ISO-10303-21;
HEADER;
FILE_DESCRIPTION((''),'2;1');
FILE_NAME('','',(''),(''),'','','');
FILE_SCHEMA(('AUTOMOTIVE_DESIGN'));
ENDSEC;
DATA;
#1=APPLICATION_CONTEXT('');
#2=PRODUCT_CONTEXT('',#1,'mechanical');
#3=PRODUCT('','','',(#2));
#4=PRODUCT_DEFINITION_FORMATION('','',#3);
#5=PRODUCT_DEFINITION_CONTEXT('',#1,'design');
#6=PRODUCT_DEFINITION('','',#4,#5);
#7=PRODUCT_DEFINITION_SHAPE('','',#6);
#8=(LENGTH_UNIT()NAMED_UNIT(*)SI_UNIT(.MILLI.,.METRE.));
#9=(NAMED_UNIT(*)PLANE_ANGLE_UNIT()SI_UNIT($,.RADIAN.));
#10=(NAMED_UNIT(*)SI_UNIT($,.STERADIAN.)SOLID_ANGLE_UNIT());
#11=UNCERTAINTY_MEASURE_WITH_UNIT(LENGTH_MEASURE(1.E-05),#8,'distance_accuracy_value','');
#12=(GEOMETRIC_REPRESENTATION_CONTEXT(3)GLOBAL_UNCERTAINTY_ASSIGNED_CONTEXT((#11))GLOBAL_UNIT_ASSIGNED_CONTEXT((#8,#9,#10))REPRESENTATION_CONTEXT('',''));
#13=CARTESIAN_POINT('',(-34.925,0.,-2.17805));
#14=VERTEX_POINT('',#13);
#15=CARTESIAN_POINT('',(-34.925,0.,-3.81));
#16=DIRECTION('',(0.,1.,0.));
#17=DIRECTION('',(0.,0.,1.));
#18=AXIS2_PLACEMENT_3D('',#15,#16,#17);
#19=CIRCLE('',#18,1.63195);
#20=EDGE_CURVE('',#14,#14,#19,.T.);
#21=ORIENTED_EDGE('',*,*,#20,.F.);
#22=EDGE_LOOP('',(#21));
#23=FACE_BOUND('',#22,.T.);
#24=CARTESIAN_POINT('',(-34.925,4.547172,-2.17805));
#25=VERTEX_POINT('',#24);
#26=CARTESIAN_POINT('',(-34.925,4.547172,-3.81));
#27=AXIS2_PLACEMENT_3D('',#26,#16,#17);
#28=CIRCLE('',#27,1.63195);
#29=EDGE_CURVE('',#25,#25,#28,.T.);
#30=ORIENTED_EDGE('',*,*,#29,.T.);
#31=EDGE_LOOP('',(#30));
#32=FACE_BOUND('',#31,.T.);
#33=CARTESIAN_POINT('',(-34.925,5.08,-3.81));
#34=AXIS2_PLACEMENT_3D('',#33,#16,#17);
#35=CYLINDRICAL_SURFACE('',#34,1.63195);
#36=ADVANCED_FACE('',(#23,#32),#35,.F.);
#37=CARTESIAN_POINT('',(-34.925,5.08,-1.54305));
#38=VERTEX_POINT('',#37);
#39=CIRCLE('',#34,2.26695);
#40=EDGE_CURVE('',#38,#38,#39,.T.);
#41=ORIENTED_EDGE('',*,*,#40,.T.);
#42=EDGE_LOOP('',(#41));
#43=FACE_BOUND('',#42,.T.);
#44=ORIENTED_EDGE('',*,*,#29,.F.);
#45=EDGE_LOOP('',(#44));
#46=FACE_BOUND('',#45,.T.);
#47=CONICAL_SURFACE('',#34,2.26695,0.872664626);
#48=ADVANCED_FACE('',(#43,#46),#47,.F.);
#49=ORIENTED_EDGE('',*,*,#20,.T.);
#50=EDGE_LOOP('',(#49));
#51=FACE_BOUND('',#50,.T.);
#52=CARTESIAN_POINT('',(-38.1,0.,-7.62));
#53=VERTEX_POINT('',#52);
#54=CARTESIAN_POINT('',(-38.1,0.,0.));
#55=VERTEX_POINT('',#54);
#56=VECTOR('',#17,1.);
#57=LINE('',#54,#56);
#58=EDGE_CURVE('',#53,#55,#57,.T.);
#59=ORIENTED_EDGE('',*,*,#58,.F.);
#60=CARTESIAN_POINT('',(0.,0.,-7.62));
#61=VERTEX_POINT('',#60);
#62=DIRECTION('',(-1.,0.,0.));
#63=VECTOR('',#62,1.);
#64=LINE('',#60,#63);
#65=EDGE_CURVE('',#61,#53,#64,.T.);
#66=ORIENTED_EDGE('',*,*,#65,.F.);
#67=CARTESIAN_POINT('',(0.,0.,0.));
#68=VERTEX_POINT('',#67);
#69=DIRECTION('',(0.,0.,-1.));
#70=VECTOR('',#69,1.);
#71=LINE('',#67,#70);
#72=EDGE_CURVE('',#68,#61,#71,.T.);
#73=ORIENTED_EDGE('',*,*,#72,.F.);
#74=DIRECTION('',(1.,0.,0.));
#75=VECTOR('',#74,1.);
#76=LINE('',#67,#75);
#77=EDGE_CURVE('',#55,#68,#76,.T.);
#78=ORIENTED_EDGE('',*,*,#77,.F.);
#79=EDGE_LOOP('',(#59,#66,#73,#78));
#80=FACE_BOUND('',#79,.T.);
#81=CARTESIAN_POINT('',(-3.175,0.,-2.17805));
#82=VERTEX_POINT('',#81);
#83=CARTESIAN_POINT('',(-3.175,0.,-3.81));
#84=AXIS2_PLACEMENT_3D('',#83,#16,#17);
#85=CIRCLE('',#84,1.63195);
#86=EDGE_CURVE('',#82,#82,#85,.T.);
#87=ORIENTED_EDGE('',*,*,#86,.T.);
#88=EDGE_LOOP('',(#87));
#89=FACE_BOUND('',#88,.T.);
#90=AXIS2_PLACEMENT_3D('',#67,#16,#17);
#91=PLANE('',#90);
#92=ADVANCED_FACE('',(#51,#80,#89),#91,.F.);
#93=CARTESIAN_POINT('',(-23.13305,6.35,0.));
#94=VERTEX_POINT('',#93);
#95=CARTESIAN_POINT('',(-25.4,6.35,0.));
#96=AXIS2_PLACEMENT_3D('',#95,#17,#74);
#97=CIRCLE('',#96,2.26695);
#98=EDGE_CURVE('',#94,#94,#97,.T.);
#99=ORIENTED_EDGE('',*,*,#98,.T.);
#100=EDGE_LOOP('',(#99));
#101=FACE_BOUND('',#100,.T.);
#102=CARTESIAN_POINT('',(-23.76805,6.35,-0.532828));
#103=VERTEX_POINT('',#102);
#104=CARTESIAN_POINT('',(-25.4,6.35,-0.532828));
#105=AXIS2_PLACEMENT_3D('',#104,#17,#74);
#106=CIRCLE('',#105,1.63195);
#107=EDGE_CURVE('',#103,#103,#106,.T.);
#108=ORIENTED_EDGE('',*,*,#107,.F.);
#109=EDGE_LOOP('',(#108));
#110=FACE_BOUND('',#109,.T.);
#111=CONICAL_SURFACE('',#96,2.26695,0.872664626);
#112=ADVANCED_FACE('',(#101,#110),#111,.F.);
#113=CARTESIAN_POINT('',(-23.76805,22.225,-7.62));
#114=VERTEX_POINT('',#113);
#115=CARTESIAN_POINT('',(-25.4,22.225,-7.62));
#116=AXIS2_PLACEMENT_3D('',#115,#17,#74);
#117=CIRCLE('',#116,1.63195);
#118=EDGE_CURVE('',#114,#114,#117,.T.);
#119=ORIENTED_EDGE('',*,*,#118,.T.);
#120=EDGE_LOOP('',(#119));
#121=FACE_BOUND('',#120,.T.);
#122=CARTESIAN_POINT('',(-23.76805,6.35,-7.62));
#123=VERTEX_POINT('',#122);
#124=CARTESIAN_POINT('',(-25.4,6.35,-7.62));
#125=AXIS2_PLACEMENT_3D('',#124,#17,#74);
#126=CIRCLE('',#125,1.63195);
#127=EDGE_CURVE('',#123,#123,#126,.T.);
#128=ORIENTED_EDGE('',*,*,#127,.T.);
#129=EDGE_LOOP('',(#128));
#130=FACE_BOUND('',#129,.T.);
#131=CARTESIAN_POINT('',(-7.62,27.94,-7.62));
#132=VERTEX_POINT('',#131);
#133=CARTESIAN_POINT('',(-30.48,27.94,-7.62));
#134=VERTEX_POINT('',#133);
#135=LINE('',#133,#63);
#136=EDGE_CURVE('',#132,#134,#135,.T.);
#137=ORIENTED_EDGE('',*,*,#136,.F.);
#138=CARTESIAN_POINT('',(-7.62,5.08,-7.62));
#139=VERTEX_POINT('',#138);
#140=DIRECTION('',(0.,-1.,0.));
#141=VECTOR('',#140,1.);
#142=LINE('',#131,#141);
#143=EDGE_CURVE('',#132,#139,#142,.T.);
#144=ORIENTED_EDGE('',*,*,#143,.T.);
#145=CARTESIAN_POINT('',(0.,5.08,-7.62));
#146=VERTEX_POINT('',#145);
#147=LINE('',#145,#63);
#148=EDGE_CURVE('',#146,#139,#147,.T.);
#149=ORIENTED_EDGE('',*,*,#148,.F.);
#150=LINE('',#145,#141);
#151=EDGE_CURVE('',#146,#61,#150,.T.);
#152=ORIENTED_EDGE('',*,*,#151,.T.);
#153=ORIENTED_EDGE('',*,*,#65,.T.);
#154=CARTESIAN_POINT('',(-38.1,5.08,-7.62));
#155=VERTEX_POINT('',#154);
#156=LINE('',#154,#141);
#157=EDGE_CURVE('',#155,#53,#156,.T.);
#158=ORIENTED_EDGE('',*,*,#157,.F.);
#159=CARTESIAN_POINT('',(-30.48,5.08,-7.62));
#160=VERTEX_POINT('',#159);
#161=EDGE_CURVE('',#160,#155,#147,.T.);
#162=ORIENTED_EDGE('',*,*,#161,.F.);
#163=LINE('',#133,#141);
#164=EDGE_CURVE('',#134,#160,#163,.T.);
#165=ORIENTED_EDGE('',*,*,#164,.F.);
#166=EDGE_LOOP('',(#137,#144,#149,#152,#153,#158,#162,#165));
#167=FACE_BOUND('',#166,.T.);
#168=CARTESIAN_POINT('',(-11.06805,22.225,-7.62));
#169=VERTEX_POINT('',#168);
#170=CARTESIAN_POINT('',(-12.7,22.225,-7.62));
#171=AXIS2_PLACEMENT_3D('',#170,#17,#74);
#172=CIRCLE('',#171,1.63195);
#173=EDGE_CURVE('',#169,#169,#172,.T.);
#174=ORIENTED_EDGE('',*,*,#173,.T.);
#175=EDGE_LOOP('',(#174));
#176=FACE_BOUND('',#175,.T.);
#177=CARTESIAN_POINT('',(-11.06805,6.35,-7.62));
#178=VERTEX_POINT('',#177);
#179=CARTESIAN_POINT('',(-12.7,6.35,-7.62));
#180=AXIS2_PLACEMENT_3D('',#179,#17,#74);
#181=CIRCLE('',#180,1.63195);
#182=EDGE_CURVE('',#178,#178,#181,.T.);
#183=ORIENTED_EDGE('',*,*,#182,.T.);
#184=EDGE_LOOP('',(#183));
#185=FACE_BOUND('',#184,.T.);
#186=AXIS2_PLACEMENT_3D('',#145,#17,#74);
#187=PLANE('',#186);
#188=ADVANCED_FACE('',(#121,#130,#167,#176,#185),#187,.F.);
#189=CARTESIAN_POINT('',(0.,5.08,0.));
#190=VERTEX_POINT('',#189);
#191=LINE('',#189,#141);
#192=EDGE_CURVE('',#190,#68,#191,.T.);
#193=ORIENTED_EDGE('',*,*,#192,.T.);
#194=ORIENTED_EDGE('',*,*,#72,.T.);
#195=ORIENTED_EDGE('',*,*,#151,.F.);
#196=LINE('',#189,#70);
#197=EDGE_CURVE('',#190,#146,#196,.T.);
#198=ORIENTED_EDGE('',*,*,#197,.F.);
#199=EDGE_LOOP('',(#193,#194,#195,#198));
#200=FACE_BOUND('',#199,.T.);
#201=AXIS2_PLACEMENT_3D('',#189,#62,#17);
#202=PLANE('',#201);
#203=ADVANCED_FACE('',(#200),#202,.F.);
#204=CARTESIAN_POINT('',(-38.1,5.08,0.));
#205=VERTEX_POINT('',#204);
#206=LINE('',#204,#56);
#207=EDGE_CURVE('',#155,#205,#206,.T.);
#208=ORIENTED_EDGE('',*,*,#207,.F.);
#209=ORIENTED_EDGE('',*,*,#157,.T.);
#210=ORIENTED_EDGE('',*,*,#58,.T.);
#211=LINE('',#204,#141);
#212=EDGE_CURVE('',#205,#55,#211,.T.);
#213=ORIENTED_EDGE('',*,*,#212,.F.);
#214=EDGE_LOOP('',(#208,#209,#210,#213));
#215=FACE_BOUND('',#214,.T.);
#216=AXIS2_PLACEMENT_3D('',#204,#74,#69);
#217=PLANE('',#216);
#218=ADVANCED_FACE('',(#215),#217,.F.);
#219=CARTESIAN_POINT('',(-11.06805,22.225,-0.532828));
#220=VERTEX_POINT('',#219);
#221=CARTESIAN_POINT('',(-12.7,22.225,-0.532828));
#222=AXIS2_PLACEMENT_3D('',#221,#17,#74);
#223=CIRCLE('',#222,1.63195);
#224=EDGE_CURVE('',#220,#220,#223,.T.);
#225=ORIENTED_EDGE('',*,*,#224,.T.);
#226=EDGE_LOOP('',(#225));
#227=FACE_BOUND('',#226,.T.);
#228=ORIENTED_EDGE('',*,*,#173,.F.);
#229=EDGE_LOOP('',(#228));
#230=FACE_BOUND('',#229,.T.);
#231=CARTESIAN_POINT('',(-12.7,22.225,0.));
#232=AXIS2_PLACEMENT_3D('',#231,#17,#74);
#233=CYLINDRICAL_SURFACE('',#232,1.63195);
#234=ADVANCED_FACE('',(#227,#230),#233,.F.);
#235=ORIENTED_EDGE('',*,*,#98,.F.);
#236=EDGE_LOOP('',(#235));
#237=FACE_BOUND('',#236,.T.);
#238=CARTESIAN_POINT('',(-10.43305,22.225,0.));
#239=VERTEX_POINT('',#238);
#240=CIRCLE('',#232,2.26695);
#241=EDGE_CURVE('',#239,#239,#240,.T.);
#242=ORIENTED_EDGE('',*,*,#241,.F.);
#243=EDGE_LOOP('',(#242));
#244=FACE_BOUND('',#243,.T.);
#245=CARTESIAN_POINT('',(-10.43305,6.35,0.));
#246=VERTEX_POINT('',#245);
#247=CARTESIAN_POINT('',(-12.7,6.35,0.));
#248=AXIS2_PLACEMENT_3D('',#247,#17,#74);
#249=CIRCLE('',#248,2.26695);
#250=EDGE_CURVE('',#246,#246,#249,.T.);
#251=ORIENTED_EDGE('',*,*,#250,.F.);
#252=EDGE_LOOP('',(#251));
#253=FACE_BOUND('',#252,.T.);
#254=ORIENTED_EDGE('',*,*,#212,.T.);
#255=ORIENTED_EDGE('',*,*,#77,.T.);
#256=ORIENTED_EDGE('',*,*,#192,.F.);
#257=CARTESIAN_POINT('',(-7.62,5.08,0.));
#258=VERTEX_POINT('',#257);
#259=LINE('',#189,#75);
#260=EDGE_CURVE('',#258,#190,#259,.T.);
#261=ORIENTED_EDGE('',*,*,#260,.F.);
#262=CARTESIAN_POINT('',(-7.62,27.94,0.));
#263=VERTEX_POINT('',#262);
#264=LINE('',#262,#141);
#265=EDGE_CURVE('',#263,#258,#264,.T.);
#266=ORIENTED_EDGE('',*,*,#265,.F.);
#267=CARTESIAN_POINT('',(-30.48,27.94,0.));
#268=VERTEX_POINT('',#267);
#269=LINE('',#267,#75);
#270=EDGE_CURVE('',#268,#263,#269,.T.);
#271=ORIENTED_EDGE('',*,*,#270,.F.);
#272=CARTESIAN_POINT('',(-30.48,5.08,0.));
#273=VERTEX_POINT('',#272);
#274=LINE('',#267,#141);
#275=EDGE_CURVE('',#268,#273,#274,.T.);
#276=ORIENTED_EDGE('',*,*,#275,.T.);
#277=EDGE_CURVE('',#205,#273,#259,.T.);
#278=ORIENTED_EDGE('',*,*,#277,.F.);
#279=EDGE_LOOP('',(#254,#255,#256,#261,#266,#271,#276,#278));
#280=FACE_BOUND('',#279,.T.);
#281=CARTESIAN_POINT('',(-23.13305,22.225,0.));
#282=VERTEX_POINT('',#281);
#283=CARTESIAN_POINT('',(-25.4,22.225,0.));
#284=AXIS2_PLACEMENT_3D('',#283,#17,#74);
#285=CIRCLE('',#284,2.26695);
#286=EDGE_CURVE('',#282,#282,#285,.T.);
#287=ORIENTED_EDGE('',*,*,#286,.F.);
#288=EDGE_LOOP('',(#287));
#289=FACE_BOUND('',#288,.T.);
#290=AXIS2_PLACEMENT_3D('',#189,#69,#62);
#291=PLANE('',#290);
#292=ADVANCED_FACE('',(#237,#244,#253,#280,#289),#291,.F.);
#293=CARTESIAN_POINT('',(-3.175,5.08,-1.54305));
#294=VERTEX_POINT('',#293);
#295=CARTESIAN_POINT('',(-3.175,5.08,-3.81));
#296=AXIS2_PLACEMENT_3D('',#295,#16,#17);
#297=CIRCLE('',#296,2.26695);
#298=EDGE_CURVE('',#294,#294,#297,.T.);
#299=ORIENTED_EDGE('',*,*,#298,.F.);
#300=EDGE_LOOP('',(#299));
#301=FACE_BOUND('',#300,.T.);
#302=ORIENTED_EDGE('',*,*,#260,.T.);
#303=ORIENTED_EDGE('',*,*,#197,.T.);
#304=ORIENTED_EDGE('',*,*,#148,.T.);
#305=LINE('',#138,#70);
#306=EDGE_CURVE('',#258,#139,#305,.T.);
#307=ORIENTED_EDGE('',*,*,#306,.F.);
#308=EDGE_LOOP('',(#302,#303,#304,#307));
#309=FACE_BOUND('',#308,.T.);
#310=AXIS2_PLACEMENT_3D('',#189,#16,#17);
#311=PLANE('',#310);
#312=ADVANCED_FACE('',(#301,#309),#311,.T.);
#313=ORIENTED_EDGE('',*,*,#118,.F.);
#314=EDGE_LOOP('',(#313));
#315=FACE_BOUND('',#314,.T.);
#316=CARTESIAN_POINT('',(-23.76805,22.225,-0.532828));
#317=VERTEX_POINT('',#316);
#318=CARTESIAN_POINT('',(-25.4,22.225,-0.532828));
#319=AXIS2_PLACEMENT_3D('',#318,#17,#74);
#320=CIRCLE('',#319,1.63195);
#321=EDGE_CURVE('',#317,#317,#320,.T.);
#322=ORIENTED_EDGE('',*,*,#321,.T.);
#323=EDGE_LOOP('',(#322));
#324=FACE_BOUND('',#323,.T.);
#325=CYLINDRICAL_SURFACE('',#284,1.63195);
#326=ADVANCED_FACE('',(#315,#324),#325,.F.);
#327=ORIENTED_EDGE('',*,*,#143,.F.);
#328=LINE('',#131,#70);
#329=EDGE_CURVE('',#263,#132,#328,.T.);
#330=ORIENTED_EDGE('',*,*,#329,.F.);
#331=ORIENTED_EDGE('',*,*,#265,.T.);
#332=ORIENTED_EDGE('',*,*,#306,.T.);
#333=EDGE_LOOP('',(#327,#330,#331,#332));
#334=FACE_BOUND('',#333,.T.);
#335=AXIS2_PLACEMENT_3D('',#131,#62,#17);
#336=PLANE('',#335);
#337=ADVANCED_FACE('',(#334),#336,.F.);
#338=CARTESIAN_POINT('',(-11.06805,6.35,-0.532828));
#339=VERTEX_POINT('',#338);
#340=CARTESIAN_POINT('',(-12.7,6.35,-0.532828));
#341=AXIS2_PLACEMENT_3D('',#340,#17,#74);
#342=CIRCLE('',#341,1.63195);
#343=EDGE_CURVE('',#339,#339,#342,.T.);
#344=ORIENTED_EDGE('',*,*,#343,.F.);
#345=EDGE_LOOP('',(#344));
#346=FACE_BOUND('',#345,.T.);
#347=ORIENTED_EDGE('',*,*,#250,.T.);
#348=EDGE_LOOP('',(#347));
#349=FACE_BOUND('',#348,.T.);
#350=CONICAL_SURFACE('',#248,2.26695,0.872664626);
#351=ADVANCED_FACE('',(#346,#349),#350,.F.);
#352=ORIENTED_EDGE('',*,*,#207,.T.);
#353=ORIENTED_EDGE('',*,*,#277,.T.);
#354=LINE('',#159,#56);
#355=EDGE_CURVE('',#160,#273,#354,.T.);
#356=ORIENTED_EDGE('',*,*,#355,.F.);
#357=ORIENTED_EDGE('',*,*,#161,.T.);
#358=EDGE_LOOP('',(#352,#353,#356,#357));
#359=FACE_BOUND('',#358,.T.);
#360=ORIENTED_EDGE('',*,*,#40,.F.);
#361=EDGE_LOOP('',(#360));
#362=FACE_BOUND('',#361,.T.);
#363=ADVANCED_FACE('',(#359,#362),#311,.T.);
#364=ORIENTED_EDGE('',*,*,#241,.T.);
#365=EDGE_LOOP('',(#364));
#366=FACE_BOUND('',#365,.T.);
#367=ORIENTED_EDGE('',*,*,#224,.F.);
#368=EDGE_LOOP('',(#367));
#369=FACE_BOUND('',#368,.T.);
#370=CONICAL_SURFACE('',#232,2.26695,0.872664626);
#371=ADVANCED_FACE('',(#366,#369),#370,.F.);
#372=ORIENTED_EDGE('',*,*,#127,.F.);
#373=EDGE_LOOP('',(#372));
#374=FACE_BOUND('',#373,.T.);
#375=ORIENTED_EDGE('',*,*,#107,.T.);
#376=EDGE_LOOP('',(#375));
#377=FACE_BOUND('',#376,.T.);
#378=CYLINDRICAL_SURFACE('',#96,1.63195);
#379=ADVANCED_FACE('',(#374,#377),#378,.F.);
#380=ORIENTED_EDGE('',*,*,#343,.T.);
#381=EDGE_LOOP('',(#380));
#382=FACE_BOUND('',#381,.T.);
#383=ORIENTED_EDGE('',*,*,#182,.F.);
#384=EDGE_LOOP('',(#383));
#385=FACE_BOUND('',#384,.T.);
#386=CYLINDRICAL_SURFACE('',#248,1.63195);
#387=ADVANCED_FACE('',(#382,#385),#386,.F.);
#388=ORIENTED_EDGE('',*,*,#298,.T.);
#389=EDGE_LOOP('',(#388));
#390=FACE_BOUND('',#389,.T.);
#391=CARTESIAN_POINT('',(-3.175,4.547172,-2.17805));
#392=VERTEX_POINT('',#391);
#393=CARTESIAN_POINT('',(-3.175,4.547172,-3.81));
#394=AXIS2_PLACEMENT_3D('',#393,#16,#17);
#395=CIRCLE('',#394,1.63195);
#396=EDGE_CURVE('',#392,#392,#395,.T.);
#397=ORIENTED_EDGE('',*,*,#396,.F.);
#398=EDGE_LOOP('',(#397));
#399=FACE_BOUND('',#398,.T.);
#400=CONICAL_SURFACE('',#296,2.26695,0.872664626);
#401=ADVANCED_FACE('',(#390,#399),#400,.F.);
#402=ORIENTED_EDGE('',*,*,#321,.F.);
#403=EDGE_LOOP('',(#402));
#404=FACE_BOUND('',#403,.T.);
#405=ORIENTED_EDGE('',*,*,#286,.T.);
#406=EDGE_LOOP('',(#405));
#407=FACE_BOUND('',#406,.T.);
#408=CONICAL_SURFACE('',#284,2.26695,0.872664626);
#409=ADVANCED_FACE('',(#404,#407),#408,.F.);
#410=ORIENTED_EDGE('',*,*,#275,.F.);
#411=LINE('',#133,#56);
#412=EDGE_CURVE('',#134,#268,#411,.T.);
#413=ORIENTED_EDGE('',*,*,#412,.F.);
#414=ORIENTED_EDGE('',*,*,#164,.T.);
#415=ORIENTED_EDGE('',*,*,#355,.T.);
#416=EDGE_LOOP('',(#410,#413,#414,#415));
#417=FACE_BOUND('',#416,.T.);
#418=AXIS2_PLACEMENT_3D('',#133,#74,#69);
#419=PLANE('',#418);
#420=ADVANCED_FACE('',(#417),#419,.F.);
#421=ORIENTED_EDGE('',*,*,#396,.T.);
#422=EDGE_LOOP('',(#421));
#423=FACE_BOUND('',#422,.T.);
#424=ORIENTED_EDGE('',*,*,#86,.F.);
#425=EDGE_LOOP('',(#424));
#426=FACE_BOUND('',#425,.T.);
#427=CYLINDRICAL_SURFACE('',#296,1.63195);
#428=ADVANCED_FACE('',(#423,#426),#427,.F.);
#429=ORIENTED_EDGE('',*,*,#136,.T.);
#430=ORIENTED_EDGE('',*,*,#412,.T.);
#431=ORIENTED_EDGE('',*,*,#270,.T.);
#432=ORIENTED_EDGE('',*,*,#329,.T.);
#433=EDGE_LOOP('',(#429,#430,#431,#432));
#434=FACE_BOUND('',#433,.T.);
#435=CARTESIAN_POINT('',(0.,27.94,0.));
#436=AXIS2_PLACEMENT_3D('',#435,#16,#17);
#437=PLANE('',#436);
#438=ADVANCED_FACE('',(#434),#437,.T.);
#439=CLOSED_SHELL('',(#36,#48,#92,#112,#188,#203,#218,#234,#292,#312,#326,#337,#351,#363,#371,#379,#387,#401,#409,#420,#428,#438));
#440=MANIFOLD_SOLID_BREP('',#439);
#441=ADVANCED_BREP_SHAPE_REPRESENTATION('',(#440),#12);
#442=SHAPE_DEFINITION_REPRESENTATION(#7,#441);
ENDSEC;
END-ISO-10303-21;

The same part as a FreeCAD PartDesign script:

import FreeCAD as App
import Part
import Sketcher
Q = App.Units.Quantity


def add_polygon(sketch, points):
    """Adds a closed chain of lines whose ends are joined by coincident constraints."""
    first, n = sketch.GeometryCount, len(points)
    for a, b in zip(points, points[1:] + points[:1]):
        sketch.addGeometry(Part.LineSegment(App.Vector(*a, 0), App.Vector(*b, 0)), False)
    for i in range(n):
        sketch.addConstraint(Sketcher.Constraint("Coincident", first + i, 2, first + (i + 1) % n, 1))

doc = App.newDocument("Part")
body = doc.addObject("PartDesign::Body", "Body")

# Sketch on XZ plane
sketch1 = body.newObject("Sketcher::SketchObject", "Sketch")
sketch1.AttachmentSupport = (doc.getObject("XZ_Plane"), [""])
sketch1.MapMode = "FlatFace"
add_polygon(sketch1, [(-38, -8), (-38, 0), (0, 0), (0, -8)])  # lines 0-3
sketch1.addConstraint([
    Sketcher.Constraint("Vertical", 0),
    Sketcher.Constraint("Horizontal", 1),
    Sketcher.Constraint("Vertical", 2),
    Sketcher.Constraint("Horizontal", 3),
    Sketcher.Constraint("Coincident", 1, 2, -1, 1),
    Sketcher.Constraint("DistanceX", 1, 1, 1, 2, Q("1.5 in")),
    Sketcher.Constraint("DistanceY", 0, 1, 0, 2, Q("0.3 in")),
])
pad1 = body.newObject("PartDesign::Pad", "Pad")
pad1.Profile = sketch1
pad1.Length = Q("0.2 in")
pad1.Reversed = True

# Sketch on XZ plane
sketch2 = body.newObject("Sketcher::SketchObject", "Sketch001")
sketch2.AttachmentSupport = (doc.getObject("XZ_Plane"), [""])
sketch2.MapMode = "FlatFace"
sketch2.AttachmentOffset = App.Placement(App.Vector(0, 0, -0.2 * 25.4), App.Rotation())
add_polygon(sketch2, [(-30, -8), (-30, 0), (-8, 0), (-8, -8)])  # lines 0-3
sketch2.addConstraint([
    Sketcher.Constraint("Vertical", 0),
    Sketcher.Constraint("Horizontal", 1),
    Sketcher.Constraint("Vertical", 2),
    Sketcher.Constraint("Horizontal", 3),
    Sketcher.Constraint("PointOnObject", 0, 2, -1),
    Sketcher.Constraint("DistanceX", 1, 1, 1, 2, Q("0.9 in")),
    Sketcher.Constraint("DistanceY", 0, 1, 0, 2, Q("0.3 in")),
    Sketcher.Constraint("DistanceX", 0, 2, -1, 1, Q("1.2 in")),
])
pad2 = body.newObject("PartDesign::Pad", "Pad001")
pad2.Profile = sketch2
pad2.Length = Q("0.9 in")
pad2.Reversed = True

# Sketch on XY plane
sketch3 = body.newObject("Sketcher::SketchObject", "Sketch002")
sketch3.AttachmentSupport = (doc.getObject("XY_Plane"), [""])
sketch3.MapMode = "FlatFace"
sketch3.addGeometry([
    Part.Circle(App.Vector(-25.4, 6.3, 0), App.Vector(0, 0, 1), 1.6),
    Part.Circle(App.Vector(-25.4, 22.2, 0), App.Vector(0, 0, 1), 1.6),
    Part.Circle(App.Vector(-12.7, 22.2, 0), App.Vector(0, 0, 1), 1.6),
    Part.Circle(App.Vector(-12.7, 6.3, 0), App.Vector(0, 0, 1), 1.6),
], False)
sketch3.addConstraint([
    Sketcher.Constraint("Equal", 0, 1),
    Sketcher.Constraint("Equal", 1, 2),
    Sketcher.Constraint("Equal", 2, 3),
    Sketcher.Constraint("Horizontal", 1, 3, 2, 3),
    Sketcher.Constraint("Horizontal", 0, 3, 3, 3),
    Sketcher.Constraint("Vertical", 0, 3, 1, 3),
    Sketcher.Constraint("Vertical", 2, 3, 3, 3),
    Sketcher.Constraint("DistanceX", 0, 3, -1, 1, Q("1 in")),
    Sketcher.Constraint("Diameter", 0, Q("0.1285 in")),
    Sketcher.Constraint("DistanceX", 2, 3, -1, 1, Q("0.5 in")),
    Sketcher.Constraint("DistanceY", -1, 1, 0, 3, Q("0.25 in")),
    Sketcher.Constraint("DistanceY", -1, 1, 1, 3, Q("0.875 in")),
])
doc.recompute()
hole = body.newObject("PartDesign::Hole", "Hole")
hole.Profile = sketch3
hole.ThreadType = "None"
hole.Diameter = Q("0.1285 in")
hole.DepthType = "ThroughAll"
hole.HoleCutType = "Countersink"
hole.HoleCutDiameter = Q("0.1785 in")
hole.HoleCutCountersinkAngle = 100

# Sketch on XZ plane
sketch4 = body.newObject("Sketcher::SketchObject", "Sketch003")
sketch4.AttachmentSupport = (doc.getObject("XZ_Plane"), [""])
sketch4.MapMode = "FlatFace"
sketch4.AttachmentOffset = App.Placement(App.Vector(0, 0, -0.2 * 25.4), App.Rotation())
sketch4.addGeometry([
    Part.Circle(App.Vector(-34.9, -3.8, 0), App.Vector(0, 0, 1), 1.6),
    Part.Circle(App.Vector(-3.2, -3.8, 0), App.Vector(0, 0, 1), 1.6),
], False)
sketch4.addConstraint([
    Sketcher.Constraint("Equal", 0, 1),
    Sketcher.Constraint("Horizontal", 0, 3, 1, 3),
    Sketcher.Constraint("Diameter", 0, Q("0.1285 in")),
    Sketcher.Constraint("DistanceY", 0, 3, -1, 1, Q("0.15 in")),
    Sketcher.Constraint("DistanceX", 0, 3, 1, 3, Q("1.25 in")),
    Sketcher.Constraint("DistanceX", 0, 3, -1, 1, Q("1.375 in")),
])
doc.recompute()
hole2 = body.newObject("PartDesign::Hole", "Hole001")
hole2.Profile = sketch4
hole2.ThreadType = "None"
hole2.Diameter = Q("0.1285 in")
hole2.DepthType = "ThroughAll"
hole2.HoleCutType = "Countersink"
hole2.HoleCutDiameter = Q("0.1785 in")
hole2.HoleCutCountersinkAngle = 100
hole2.Reversed = True

doc.recompute()
